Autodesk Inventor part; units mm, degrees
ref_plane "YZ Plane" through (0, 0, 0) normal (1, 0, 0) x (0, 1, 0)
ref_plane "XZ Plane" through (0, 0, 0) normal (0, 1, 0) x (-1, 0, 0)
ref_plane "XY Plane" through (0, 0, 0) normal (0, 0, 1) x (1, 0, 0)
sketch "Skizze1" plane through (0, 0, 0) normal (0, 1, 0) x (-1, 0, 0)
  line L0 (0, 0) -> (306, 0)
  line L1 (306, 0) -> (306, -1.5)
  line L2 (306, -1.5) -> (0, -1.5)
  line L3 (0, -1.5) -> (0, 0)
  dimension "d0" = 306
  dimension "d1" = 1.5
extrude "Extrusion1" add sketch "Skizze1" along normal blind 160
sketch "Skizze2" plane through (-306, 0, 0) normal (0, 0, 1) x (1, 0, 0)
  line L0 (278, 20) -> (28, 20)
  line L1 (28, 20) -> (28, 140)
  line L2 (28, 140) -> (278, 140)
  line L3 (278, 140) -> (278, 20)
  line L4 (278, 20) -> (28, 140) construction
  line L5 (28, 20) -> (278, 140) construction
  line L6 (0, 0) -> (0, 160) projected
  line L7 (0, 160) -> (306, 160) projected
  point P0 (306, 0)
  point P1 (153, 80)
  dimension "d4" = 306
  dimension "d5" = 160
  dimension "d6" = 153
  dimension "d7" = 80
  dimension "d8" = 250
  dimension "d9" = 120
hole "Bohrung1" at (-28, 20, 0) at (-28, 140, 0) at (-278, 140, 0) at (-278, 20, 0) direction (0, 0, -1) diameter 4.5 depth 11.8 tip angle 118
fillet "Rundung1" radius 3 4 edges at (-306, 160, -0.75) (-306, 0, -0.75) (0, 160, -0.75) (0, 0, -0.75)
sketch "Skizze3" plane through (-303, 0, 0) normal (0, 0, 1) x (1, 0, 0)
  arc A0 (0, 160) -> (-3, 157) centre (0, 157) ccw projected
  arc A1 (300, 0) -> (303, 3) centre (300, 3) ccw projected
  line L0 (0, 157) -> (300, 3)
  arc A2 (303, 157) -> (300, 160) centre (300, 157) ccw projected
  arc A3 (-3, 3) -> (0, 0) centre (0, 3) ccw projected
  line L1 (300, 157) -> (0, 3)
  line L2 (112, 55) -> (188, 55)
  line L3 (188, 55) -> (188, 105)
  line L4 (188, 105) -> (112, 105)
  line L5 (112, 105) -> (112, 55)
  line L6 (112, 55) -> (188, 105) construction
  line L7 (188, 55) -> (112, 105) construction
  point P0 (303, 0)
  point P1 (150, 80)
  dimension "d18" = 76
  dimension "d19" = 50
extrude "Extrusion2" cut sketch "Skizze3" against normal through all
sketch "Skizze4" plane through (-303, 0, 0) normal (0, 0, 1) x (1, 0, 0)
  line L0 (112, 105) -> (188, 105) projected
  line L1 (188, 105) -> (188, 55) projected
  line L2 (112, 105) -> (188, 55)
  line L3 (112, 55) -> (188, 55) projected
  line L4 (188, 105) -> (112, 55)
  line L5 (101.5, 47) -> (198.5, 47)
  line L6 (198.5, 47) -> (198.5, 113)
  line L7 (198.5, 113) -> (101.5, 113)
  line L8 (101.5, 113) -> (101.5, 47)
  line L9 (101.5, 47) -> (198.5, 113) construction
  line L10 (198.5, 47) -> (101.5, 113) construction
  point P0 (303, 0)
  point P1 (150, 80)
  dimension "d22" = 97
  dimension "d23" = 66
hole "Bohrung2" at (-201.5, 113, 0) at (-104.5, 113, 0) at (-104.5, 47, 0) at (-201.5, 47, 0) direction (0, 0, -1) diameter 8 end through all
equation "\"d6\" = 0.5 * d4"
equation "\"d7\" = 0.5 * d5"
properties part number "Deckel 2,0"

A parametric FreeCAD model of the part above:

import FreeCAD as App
import Part
import Sketcher
from FreeCAD import Vector


def edges_at(feature, points):
    """Names of the edges that pass closest to the given points."""
    edges = feature.Shape.Edges
    near = lambda p: min(range(len(edges)), key=lambda i: edges[i].distToShape(Part.Vertex(*p))[0])
    return sorted({f"Edge{near(p) + 1}" for p in points})


def add_polygon(sketch, points):
    """Adds a closed chain of lines whose ends are joined by coincident constraints."""
    first, n = sketch.GeometryCount, len(points)
    for a, b in zip(points, points[1:] + points[:1]):
        sketch.addGeometry(Part.LineSegment(App.Vector(*a, 0), App.Vector(*b, 0)), False)
    for i in range(n):
        sketch.addConstraint(Sketcher.Constraint("Coincident", first + i, 2, first + (i + 1) % n, 1))

doc = App.newDocument("Part")
params = doc.addObject("Spreadsheet::Sheet", "Params")
for row, (alias, value) in enumerate([
    ("sketch1_width", "306 mm"),
    ("sketch1_height", "1.5 mm"),
    ("pad1_length", "160 mm"),
    ("sketch2_diameter", "4.5 mm"),
    ("hole_diameter", "4.5 mm"),
    ("hole_depth", "11.8 mm"),
    ("fillet_radius", "3 mm"),
    ("sketch3_width", "76 mm"),
    ("sketch3_height", "50 mm"),
    ("sketch4_diameter", "8 mm"),
    ("hole2_diameter", "8 mm"),
], start=1):
    params.set(f"A{row}", alias)
    params.set(f"B{row}", "=" + value)
    params.setAlias(f"B{row}", alias)

body = doc.addObject("PartDesign::Body", "Body")

sketch1 = body.newObject("Sketcher::SketchObject", "Sketch")
sketch1.AttachmentSupport = (doc.getObject("XZ_Plane"), [""])
sketch1.MapMode = "FlatFace"
add_polygon(sketch1, [(-306, 0), (0, 0), (0, -1.5), (-306, -1.5)])
sketch1.addConstraint([
    Sketcher.Constraint("Horizontal", 0),
    Sketcher.Constraint("Vertical", 1),
    Sketcher.Constraint("Horizontal", 2),
    Sketcher.Constraint("Vertical", 3),
    Sketcher.Constraint("Coincident", 0, 2, -1, 1),
    Sketcher.Constraint("DistanceX", 0, 1, 0, 2, 306.0),
    Sketcher.Constraint("DistanceY", 1, 2, 1, 1, 1.5),
])
sketch1.setExpression("Constraints[9]", "Params.sketch1_width")
sketch1.setExpression("Constraints[10]", "Params.sketch1_height")
pad1 = body.newObject("PartDesign::Pad", "Pad")
pad1.Profile = sketch1
pad1.setExpression("Length", "Params.pad1_length")
pad1.Reversed = True

sketch2 = body.newObject("Sketcher::SketchObject", "Sketch001")
sketch2.AttachmentSupport = (doc.getObject("XY_Plane"), [""])
sketch2.MapMode = "FlatFace"
sketch2.addGeometry([
    Part.Circle(Vector(-28, 20, 0), Vector(0, 0, 1), 2.2),
    Part.Circle(Vector(-28, 140, 0), Vector(0, 0, 1), 2.2),
    Part.Circle(Vector(-278, 140, 0), Vector(0, 0, 1), 2.2),
    Part.Circle(Vector(-278, 20, 0), Vector(0, 0, 1), 2.2),
], False)
sketch2.addConstraint([
    Sketcher.Constraint("Equal", 0, 1),
    Sketcher.Constraint("Equal", 1, 2),
    Sketcher.Constraint("Equal", 2, 3),
    Sketcher.Constraint("Horizontal", 1, 3, 2, 3),
    Sketcher.Constraint("Horizontal", 0, 3, 3, 3),
    Sketcher.Constraint("Vertical", 0, 3, 1, 3),
    Sketcher.Constraint("Vertical", 2, 3, 3, 3),
    Sketcher.Constraint("Diameter", 0, 4.5),
    Sketcher.Constraint("DistanceX", 0, 3, -1, 1, 28.0),
    Sketcher.Constraint("DistanceY", -1, 1, 0, 3, 20.0),
    Sketcher.Constraint("DistanceY", -1, 1, 1, 3, 140.0),
    Sketcher.Constraint("DistanceX", 2, 3, -1, 1, 278.0),
])
sketch2.setExpression("Constraints[7]", "Params.sketch2_diameter")
doc.recompute()
hole = body.newObject("PartDesign::Hole", "Hole")
hole.Profile = sketch2
hole.ThreadType = "None"
hole.setExpression("Diameter", "Params.hole_diameter")
hole.DepthType = "Dimension"
hole.setExpression("Depth", "Params.hole_depth")
hole.DrillPoint = "Angled"
hole.DrillPointAngle = 118
doc.recompute()

fillet = body.newObject("PartDesign::Fillet", "Fillet")
fillet.Base = (hole, edges_at(hole, [
    (-306, 160, -0.75),
    (-306, 0, -0.75),
    (0, 160, -0.75),
    (0, 0, -0.75),
]))
fillet.setExpression("Radius", "Params.fillet_radius")

sketch3 = body.newObject("Sketcher::SketchObject", "Sketch002")
sketch3.AttachmentSupport = (doc.getObject("XY_Plane"), [""])
sketch3.MapMode = "FlatFace"
add_polygon(sketch3, [(-191, 105), (-191, 55), (-115, 55), (-115, 105)])
sketch3.addConstraint([
    Sketcher.Constraint("Vertical", 0),
    Sketcher.Constraint("Horizontal", 1),
    Sketcher.Constraint("Vertical", 2),
    Sketcher.Constraint("Horizontal", 3),
    Sketcher.Constraint("DistanceX", 1, 1, 1, 2, 76.0),
    Sketcher.Constraint("DistanceY", 0, 2, 0, 1, 50.0),
    Sketcher.Constraint("DistanceX", 0, 2, -1, 1, 191.0),
    Sketcher.Constraint("DistanceY", -1, 1, 0, 2, 55.0),
])
sketch3.setExpression("Constraints[8]", "Params.sketch3_width")
sketch3.setExpression("Constraints[9]", "Params.sketch3_height")
pocket1 = body.newObject("PartDesign::Pocket", "Pocket")
pocket1.Profile = sketch3
pocket1.Type = "ThroughAll"

sketch4 = body.newObject("Sketcher::SketchObject", "Sketch003")
sketch4.AttachmentSupport = (doc.getObject("XY_Plane"), [""])
sketch4.MapMode = "FlatFace"
sketch4.addGeometry([
    Part.Circle(Vector(-201.5, 113, 0), Vector(0, 0, 1), 4),
    Part.Circle(Vector(-104.5, 113, 0), Vector(0, 0, 1), 4),
    Part.Circle(Vector(-104.5, 47, 0), Vector(0, 0, 1), 4),
    Part.Circle(Vector(-201.5, 47, 0), Vector(0, 0, 1), 4),
], False)
sketch4.addConstraint([
    Sketcher.Constraint("Equal", 0, 1),
    Sketcher.Constraint("Equal", 1, 2),
    Sketcher.Constraint("Equal", 2, 3),
    Sketcher.Constraint("Horizontal", 0, 3, 1, 3),
    Sketcher.Constraint("Horizontal", 2, 3, 3, 3),
    Sketcher.Constraint("Vertical", 1, 3, 2, 3),
    Sketcher.Constraint("Vertical", 0, 3, 3, 3),
    Sketcher.Constraint("Diameter", 0, 8.0),
    Sketcher.Constraint("DistanceY", -1, 1, 0, 3, 113.0),
    Sketcher.Constraint("DistanceY", -1, 1, 2, 3, 47.0),
    Sketcher.Constraint("DistanceX", 0, 3, 1, 3, 97.0),
    Sketcher.Constraint("DistanceX", 0, 3, -1, 1, 201.5),
])
sketch4.setExpression("Constraints[7]", "Params.sketch4_diameter")
doc.recompute()
hole2 = body.newObject("PartDesign::Hole", "Hole001")
hole2.Profile = sketch4
hole2.ThreadType = "None"
hole2.setExpression("Diameter", "Params.hole2_diameter")
hole2.DepthType = "ThroughAll"

doc.recompute()
